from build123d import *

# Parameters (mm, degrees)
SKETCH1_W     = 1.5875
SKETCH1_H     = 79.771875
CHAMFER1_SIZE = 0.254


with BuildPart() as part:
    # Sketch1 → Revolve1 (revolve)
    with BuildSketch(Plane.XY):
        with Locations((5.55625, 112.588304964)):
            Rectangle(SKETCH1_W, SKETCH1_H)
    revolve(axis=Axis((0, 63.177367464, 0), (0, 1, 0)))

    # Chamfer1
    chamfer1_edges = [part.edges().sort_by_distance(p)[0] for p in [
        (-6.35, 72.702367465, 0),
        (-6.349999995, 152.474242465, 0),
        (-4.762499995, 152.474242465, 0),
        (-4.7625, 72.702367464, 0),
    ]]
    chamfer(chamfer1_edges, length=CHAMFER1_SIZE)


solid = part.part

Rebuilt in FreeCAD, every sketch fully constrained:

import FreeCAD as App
import Part
import Sketcher
Q = App.Units.Quantity


def edges_at(feature, points):
    """Names of the edges that pass closest to the given points."""
    edges = feature.Shape.Edges
    near = lambda p: min(range(len(edges)), key=lambda i: edges[i].distToShape(Part.Vertex(*p))[0])
    return sorted({f"Edge{near(p) + 1}" for p in points})


def add_polygon(sketch, points):
    """Adds a closed chain of lines whose ends are joined by coincident constraints."""
    first, n = sketch.GeometryCount, len(points)
    for a, b in zip(points, points[1:] + points[:1]):
        sketch.addGeometry(Part.LineSegment(App.Vector(*a, 0), App.Vector(*b, 0)), False)
    for i in range(n):
        sketch.addConstraint(Sketcher.Constraint("Coincident", first + i, 2, first + (i + 1) % n, 1))

doc = App.newDocument("Part")
params = doc.addObject("Spreadsheet::Sheet", "Params")
for row, (alias, value) in enumerate([
    ("sketch1_width", "0.0625 in"),
    ("sketch1_height", "3.140625 in"),
    ("revolution_angle", "360 deg"),
    ("chamfer_size", "0.01 in"),
], start=1):
    params.set(f"A{row}", alias)
    params.set(f"B{row}", "=" + value)
    params.setAlias(f"B{row}", alias)

body = doc.addObject("PartDesign::Body", "Body")

# Sketch on XY plane
sketch1 = body.newObject("Sketcher::SketchObject", "Sketch")
sketch1.AttachmentSupport = (doc.getObject("XY_Plane"), [""])
sketch1.MapMode = "FlatFace"
add_polygon(sketch1, [(4.8, 152.5), (4.8, 72.7), (6.3, 72.7), (6.3, 152.5)])  # lines 0-3
sketch1.addConstraint([
    Sketcher.Constraint("Vertical", 0),
    Sketcher.Constraint("Horizontal", 1),
    Sketcher.Constraint("Vertical", 2),
    Sketcher.Constraint("Horizontal", 3),
    Sketcher.Constraint("DistanceX", 1, 1, 1, 2, Q("0.0625 in")),
    Sketcher.Constraint("DistanceY", 0, 2, 0, 1, Q("3.140625 in")),
    Sketcher.Constraint("DistanceX", -1, 1, 1, 2, Q("0.25 in")),
    Sketcher.Constraint("DistanceY", -1, 1, 0, 2, Q("72.702367 mm")),
])
sketch1.setExpression("Constraints[8]", "Params.sketch1_width")
sketch1.setExpression("Constraints[9]", "Params.sketch1_height")
revolution = body.newObject("PartDesign::Revolution", "Revolution")
revolution.Profile = sketch1
revolution.ReferenceAxis = (sketch1, ["V_Axis"])
revolution.setExpression("Angle", "Params.revolution_angle")
doc.recompute()

chamfer = body.newObject("PartDesign::Chamfer", "Chamfer")
chamfer.Base = (revolution, edges_at(revolution, [
    (-6.35, 72.702, 0),
    (-6.35, 152.474, 0),
    (-4.763, 152.474, 0),
    (-4.763, 72.702, 0),
]))
chamfer.setExpression("Size", "Params.chamfer_size")

doc.recompute()
